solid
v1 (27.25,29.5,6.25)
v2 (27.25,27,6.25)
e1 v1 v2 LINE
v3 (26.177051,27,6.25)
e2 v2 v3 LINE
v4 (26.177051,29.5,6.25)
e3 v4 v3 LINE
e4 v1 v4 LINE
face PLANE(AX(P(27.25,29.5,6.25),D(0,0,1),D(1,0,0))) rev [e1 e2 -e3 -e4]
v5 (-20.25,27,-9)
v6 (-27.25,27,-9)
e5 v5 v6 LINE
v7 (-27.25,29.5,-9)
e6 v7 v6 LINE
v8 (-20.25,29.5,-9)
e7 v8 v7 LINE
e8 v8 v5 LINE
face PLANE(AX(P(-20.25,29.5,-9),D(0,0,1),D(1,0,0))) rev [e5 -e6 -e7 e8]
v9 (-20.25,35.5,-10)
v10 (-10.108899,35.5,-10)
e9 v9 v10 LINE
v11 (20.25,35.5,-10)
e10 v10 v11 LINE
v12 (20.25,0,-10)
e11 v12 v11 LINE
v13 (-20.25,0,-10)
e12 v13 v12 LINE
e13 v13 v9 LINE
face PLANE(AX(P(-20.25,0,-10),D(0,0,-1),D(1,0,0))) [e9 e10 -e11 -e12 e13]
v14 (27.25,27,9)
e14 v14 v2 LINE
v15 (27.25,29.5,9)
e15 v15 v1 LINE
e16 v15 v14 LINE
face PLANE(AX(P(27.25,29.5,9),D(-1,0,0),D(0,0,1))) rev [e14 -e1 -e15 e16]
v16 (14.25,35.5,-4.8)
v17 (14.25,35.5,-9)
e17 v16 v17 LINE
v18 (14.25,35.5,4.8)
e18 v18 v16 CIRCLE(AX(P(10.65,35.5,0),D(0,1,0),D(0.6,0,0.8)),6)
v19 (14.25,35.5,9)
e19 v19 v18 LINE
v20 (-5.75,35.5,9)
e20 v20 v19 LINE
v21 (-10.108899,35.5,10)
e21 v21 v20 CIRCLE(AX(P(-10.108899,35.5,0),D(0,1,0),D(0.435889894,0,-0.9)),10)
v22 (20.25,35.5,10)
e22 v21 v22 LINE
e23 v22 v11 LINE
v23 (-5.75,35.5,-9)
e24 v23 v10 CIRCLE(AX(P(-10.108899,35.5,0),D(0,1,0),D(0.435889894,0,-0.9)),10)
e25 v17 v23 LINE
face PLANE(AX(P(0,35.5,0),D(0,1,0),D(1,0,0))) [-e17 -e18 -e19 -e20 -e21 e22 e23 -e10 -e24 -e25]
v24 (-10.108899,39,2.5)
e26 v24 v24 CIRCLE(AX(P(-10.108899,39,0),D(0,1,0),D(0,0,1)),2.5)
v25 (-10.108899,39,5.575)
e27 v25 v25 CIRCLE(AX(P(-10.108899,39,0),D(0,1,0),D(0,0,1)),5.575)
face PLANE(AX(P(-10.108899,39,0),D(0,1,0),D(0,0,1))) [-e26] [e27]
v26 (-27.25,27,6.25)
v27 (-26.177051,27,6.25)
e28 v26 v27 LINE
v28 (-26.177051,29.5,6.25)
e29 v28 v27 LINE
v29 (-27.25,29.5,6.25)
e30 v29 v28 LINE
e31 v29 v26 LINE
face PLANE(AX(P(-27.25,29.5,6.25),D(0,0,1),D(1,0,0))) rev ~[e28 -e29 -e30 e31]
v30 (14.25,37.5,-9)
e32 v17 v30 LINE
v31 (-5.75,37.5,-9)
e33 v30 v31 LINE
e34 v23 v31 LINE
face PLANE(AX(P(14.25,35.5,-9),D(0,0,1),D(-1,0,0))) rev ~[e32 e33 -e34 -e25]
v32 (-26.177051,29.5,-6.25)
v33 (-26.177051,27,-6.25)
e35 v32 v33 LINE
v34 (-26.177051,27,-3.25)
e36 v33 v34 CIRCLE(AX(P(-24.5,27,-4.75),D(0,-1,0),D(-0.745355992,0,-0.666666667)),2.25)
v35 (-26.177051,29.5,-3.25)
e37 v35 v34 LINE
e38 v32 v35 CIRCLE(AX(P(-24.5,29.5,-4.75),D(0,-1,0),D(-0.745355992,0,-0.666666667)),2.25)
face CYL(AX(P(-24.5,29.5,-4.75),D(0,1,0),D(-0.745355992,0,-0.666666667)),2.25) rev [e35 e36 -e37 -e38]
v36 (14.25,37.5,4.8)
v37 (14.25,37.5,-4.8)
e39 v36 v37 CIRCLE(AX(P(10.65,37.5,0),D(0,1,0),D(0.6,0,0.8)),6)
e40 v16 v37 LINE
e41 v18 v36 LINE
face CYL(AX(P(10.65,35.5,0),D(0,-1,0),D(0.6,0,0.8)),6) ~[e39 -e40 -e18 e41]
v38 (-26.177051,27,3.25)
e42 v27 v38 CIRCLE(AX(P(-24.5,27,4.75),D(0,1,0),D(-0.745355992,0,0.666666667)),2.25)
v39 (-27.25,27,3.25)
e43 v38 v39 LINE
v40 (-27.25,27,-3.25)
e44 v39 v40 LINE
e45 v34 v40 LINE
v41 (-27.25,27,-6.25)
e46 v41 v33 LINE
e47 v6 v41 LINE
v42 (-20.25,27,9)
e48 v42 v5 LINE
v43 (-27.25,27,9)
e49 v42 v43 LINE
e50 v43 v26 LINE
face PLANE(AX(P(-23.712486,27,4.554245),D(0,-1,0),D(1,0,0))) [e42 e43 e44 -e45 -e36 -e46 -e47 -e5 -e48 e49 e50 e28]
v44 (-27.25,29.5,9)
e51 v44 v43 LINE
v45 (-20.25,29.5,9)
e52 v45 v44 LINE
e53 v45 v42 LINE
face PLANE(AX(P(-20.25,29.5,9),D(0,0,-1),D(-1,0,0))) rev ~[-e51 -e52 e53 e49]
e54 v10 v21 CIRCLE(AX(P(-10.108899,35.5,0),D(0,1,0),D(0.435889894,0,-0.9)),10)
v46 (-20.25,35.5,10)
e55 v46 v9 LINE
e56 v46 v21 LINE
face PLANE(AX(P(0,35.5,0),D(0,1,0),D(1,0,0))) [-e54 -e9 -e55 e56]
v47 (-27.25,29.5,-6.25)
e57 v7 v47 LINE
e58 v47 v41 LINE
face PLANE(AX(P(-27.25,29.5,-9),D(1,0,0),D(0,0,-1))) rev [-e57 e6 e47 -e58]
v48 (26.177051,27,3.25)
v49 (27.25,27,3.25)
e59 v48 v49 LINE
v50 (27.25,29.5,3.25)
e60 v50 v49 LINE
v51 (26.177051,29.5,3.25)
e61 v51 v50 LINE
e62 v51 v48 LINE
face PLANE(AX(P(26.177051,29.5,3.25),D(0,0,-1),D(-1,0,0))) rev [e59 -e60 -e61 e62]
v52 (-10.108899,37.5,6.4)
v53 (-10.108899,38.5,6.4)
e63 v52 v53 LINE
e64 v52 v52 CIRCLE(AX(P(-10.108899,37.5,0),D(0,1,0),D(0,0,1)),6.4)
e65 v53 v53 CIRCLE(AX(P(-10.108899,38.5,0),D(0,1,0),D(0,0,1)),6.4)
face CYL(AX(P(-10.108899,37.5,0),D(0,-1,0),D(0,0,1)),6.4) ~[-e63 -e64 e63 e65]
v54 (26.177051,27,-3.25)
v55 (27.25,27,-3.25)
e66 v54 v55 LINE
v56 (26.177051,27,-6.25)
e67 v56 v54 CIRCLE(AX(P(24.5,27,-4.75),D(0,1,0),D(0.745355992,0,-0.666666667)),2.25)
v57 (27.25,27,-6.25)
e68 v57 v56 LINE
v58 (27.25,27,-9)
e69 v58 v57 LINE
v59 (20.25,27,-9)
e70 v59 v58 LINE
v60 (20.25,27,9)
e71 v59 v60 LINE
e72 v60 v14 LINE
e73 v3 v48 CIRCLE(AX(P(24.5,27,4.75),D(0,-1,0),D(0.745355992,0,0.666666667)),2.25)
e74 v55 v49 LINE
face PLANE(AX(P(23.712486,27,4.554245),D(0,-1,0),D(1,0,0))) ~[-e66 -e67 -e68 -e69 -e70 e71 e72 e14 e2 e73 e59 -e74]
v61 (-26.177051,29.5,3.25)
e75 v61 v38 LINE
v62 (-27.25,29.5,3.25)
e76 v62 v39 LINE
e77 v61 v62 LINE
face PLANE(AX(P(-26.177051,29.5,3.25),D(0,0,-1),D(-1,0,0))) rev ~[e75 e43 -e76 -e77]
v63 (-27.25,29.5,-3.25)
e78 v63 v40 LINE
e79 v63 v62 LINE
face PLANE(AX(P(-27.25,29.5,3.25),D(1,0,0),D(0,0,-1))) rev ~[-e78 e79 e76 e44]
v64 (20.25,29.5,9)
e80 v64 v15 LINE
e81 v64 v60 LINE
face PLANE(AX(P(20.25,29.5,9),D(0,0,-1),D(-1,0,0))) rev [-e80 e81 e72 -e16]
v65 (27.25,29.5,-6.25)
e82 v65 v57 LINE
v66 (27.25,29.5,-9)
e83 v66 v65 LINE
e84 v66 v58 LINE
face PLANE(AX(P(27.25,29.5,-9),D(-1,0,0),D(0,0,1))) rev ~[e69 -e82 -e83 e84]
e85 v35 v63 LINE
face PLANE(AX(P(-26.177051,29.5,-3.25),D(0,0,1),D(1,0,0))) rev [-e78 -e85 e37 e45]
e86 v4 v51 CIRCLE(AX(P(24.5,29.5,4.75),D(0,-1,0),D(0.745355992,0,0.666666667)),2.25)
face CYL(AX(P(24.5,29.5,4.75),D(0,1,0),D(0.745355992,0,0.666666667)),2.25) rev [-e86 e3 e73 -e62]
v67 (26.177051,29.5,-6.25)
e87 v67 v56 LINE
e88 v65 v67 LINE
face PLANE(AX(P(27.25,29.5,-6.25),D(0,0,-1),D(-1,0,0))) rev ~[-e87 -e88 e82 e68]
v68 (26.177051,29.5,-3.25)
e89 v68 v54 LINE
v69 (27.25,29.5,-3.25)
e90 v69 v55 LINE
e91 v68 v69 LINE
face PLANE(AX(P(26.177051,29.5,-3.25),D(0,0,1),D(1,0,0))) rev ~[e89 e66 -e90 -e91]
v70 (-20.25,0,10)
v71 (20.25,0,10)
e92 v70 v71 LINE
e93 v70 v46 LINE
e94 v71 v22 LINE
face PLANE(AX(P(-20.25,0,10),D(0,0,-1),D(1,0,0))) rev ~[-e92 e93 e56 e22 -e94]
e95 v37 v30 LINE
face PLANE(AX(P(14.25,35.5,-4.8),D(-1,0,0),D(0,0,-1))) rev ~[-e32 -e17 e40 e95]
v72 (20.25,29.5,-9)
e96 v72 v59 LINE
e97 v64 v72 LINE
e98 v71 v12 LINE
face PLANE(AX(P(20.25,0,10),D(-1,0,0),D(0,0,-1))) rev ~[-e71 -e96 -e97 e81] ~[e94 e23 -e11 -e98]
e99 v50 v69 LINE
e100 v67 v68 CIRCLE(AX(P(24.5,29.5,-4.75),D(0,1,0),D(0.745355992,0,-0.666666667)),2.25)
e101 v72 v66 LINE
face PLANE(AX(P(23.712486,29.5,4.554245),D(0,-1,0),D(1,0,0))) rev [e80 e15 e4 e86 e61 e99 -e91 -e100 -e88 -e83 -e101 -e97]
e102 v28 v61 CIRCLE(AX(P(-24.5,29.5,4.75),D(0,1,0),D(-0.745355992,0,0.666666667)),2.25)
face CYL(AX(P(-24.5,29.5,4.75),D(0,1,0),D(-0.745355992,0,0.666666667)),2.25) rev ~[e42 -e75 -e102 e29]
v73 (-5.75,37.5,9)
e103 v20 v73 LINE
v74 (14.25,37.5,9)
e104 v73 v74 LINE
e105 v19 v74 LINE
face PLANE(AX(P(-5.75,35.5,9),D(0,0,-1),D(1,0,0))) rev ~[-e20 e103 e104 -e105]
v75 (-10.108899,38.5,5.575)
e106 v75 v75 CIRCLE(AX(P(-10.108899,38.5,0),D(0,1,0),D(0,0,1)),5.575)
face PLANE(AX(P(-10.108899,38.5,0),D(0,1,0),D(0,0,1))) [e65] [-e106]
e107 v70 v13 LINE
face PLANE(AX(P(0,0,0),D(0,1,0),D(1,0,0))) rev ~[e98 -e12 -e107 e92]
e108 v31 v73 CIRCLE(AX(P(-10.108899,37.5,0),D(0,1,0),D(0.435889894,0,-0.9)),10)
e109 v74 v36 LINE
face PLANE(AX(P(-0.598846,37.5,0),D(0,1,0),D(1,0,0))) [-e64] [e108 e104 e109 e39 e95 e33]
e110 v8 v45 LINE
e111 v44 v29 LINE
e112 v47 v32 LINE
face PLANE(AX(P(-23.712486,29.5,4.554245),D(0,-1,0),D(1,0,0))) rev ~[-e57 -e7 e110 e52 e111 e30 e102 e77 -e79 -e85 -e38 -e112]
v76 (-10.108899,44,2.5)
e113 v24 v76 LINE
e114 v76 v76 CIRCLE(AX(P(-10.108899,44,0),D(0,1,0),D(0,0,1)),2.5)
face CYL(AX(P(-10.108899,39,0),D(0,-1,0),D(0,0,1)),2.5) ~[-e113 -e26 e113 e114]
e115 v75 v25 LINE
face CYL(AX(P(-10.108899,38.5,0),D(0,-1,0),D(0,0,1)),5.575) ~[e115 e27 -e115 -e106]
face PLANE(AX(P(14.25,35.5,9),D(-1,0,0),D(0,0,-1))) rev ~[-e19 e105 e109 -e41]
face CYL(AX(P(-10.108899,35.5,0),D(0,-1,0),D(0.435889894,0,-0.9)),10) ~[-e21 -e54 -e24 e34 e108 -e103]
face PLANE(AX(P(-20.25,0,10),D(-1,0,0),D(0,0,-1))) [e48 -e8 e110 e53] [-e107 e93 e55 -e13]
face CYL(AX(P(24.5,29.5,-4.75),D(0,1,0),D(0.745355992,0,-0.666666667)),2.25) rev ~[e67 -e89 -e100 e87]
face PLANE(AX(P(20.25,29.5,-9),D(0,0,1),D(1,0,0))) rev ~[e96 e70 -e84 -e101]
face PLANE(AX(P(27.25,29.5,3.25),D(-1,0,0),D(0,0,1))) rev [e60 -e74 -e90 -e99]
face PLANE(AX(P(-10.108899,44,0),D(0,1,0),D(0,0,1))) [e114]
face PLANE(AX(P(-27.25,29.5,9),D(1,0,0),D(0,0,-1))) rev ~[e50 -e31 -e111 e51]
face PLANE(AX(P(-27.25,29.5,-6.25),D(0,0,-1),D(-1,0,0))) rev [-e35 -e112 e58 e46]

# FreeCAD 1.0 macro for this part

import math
import FreeCAD as App
import Part
import Sketcher
from FreeCAD import Vector

doc = App.newDocument("Part")
body = doc.addObject("PartDesign::Body", "Body")

sketch1 = body.newObject("Sketcher::SketchObject", "Sketch")
sketch1.AttachmentSupport = (doc.getObject("XZ_Plane"), [""])
sketch1.MapMode = "FlatFace"
sketch1.addGeometry([
    Part.LineSegment(Vector(-20, -10, 0), Vector(-20, 10, 0)),
    Part.LineSegment(Vector(-20, 10, 0), Vector(20, 10, 0)),
    Part.LineSegment(Vector(20, 10, 0), Vector(20, -10, 0)),
    Part.LineSegment(Vector(20, -10, 0), Vector(-20, -10, 0)),
], False)
sketch1.addConstraint([
    Sketcher.Constraint("Coincident", 0, 2, 1, 1),
    Sketcher.Constraint("Coincident", 1, 2, 2, 1),
    Sketcher.Constraint("Coincident", 2, 2, 3, 1),
    Sketcher.Constraint("Coincident", 3, 2, 0, 1),
    Sketcher.Constraint("Vertical", 0),
    Sketcher.Constraint("Horizontal", 1),
    Sketcher.Constraint("Vertical", 2),
    Sketcher.Constraint("Horizontal", 3),
    Sketcher.Constraint("Symmetric", 0, 2, 2, 2, -1, 1),
    Sketcher.Constraint("DistanceY", 0, 1, 0, 2, 20.0),
    Sketcher.Constraint("DistanceX", 1, 1, 1, 2, 40.5),
])
pad1 = body.newObject("PartDesign::Pad", "Pad")
pad1.Profile = sketch1
pad1.Length = 35.5
pad1.Reversed = True

sketch2 = body.newObject("Sketcher::SketchObject", "Sketch001")
sketch2.AttachmentSupport = (doc.getObject("XZ_Plane"), [""])
sketch2.MapMode = "FlatFace"
sketch2.AttachmentOffset = App.Placement(Vector(0, 0, -35.5), App.Rotation())
sketch2.addGeometry([
    Part.LineSegment(Vector(-5.8, 9, 0), Vector(14.2, 9, 0)),
    Part.LineSegment(Vector(14.2, 9, 0), Vector(14.2, 4.8, 0)),
    Part.ArcOfCircle(Part.Circle(Vector(10.7, 0, 0), Vector(0, 0, 1), 6), math.radians(-53), math.radians(53)),
    Part.LineSegment(Vector(14.2, -4.8, 0), Vector(14.2, -9, 0)),
    Part.LineSegment(Vector(14.2, -9, 0), Vector(-5.8, -9, 0)),
    Part.ArcOfCircle(Part.Circle(Vector(-10.1, 0, 0), Vector(0, 0, 1), 10), math.radians(64), math.radians(296)),
], False)
sketch2.addConstraint([
    Sketcher.Constraint("Coincident", 0, 2, 1, 1),
    Sketcher.Constraint("Coincident", 1, 2, 2, 2),
    Sketcher.Constraint("Coincident", 2, 1, 3, 1),
    Sketcher.Constraint("Coincident", 3, 2, 4, 1),
    Sketcher.Constraint("Coincident", 4, 2, 5, 2),
    Sketcher.Constraint("Coincident", 5, 1, 0, 1),
    Sketcher.Constraint("Horizontal", 0),
    Sketcher.Constraint("Vertical", 1),
    Sketcher.Constraint("Vertical", 3),
    Sketcher.Constraint("Horizontal", 4),
    Sketcher.Constraint("Symmetric", 1, 2, 2, 1, -1),
    Sketcher.Constraint("Symmetric", 4, 2, 5, 1, -1),
    Sketcher.Constraint("Radius", 2, 6.0),
    Sketcher.Constraint("Radius", 5, 10.0),
    Sketcher.Constraint("DistanceX", 0, 1, 0, 2, 20.0),
    Sketcher.Constraint("DistanceY", 1, 2, 1, 1, 4.2),
    Sketcher.Constraint("DistanceY", -1, 1, 0, 2, 9.0),
    Sketcher.Constraint("DistanceX", -1, 1, 2, 3, 10.65),
])
pad2 = body.newObject("PartDesign::Pad", "Pad001")
pad2.Profile = sketch2
pad2.Length = 2
pad2.Reversed = True

sketch3 = body.newObject("Sketcher::SketchObject", "Sketch002")
sketch3.AttachmentSupport = (doc.getObject("XZ_Plane"), [""])
sketch3.MapMode = "FlatFace"
sketch3.AttachmentOffset = App.Placement(Vector(0, 0, -37.5), App.Rotation())
sketch3.addGeometry(Part.Circle(Vector(-10, 0, 0), Vector(0, 0, 1), 6), False)
sketch3.addConstraint([
    Sketcher.Constraint("PointOnObject", 0, 3, -1),
    Sketcher.Constraint("Diameter", 0, 12.8),
    Sketcher.Constraint("DistanceX", 0, 3, -1, 1, 10.108899),
])
pad3 = body.newObject("PartDesign::Pad", "Pad002")
pad3.Profile = sketch3
pad3.Length = 1
pad3.Reversed = True

sketch4 = body.newObject("Sketcher::SketchObject", "Sketch003")
sketch4.AttachmentSupport = (doc.getObject("XZ_Plane"), [""])
sketch4.MapMode = "FlatFace"
sketch4.AttachmentOffset = App.Placement(Vector(0, 0, -38.5), App.Rotation())
sketch4.addGeometry(Part.Circle(Vector(-10, 0, 0), Vector(0, 0, 1), 6), False)
sketch4.addConstraint([
    Sketcher.Constraint("PointOnObject", 0, 3, -1),
    Sketcher.Constraint("Diameter", 0, 11.15),
    Sketcher.Constraint("DistanceX", 0, 3, -1, 1, 10.108899),
])
pad4 = body.newObject("PartDesign::Pad", "Pad003")
pad4.Profile = sketch4
pad4.Length = 0.5
pad4.Reversed = True

sketch5 = body.newObject("Sketcher::SketchObject", "Sketch004")
sketch5.AttachmentSupport = (doc.getObject("XZ_Plane"), [""])
sketch5.MapMode = "FlatFace"
sketch5.AttachmentOffset = App.Placement(Vector(0, 0, -29.5), App.Rotation())
sketch5.addGeometry([
    Part.LineSegment(Vector(27.2, -9, 0), Vector(20.2, -9, 0)),
    Part.LineSegment(Vector(20.2, -9, 0), Vector(20.2, 0, 0)),
    Part.LineSegment(Vector(20.2, 0, 0), Vector(27.2, 0, 0)),
    Part.LineSegment(Vector(27.2, 0, 0), Vector(27.2, -3.2, 0)),
    Part.LineSegment(Vector(27.2, -3.2, 0), Vector(26.2, -3.2, 0)),
    Part.ArcOfCircle(Part.Circle(Vector(24.5, -4.8, 0), Vector(0, 0, 1), 2.2), math.radians(42), math.radians(318)),
    Part.LineSegment(Vector(26.2, -6.2, 0), Vector(27.2, -6.2, 0)),
    Part.LineSegment(Vector(27.2, -6.2, 0), Vector(27.2, -9, 0)),
], False)
sketch5.addConstraint([
    Sketcher.Constraint("Coincident", 0, 2, 1, 1),
    Sketcher.Constraint("Coincident", 1, 2, 2, 1),
    Sketcher.Constraint("Coincident", 2, 2, 3, 1),
    Sketcher.Constraint("Coincident", 3, 2, 4, 1),
    Sketcher.Constraint("Coincident", 4, 2, 5, 1),
    Sketcher.Constraint("Coincident", 5, 2, 6, 1),
    Sketcher.Constraint("Coincident", 6, 2, 7, 1),
    Sketcher.Constraint("Coincident", 7, 2, 0, 1),
    Sketcher.Constraint("Horizontal", 0),
    Sketcher.Constraint("Vertical", 1),
    Sketcher.Constraint("Horizontal", 2),
    Sketcher.Constraint("Vertical", 3),
    Sketcher.Constraint("Horizontal", 4),
    Sketcher.Constraint("Horizontal", 6),
    Sketcher.Constraint("Vertical", 7),
    Sketcher.Constraint("PointOnObject", 1, 2, -1),
    Sketcher.Constraint("Vertical", 4, 2, 5, 2),
    Sketcher.Constraint("Vertical", 3, 2, 6, 2),
    Sketcher.Constraint("DistanceX", 0, 2, 0, 1, 7.0),
    Sketcher.Constraint("DistanceY", 1, 1, 1, 2, 9.0),
    Sketcher.Constraint("Radius", 5, 2.25),
    Sketcher.Constraint("DistanceY", 5, 2, 4, 2, 3.0),
    Sketcher.Constraint("DistanceY", 3, 2, 3, 1, 3.25),
    Sketcher.Constraint("DistanceX", -1, 1, 5, 3, 24.5),
    Sketcher.Constraint("DistanceX", -1, 1, 0, 2, 20.25),
])
pad5 = body.newObject("PartDesign::Pad", "Pad004")
pad5.Profile = sketch5
pad5.Length = 2.5
doc.recompute()

mirrored = body.newObject("PartDesign::Mirrored", "Mirrored")
mirrored.Originals = [pad5]
mirrored.MirrorPlane = (doc.getObject("YZ_Plane"), [""])
body.Tip = mirrored
doc.recompute()

mirrored2 = body.newObject("PartDesign::Mirrored", "Mirrored001")
mirrored2.Originals = [pad5]
mirrored2.MirrorPlane = (doc.getObject("XY_Plane"), [""])
body.Tip = mirrored2

sketch6 = body.newObject("Sketcher::SketchObject", "Sketch005")
sketch6.AttachmentSupport = (doc.getObject("XZ_Plane"), [""])
sketch6.MapMode = "FlatFace"
sketch6.AttachmentOffset = App.Placement(Vector(0, 0, -29.5), App.Rotation())
sketch6.addGeometry([
    Part.LineSegment(Vector(-27.2, 9, 0), Vector(-20.2, 9, 0)),
    Part.LineSegment(Vector(-20.2, 9, 0), Vector(-20.2, 0, 0)),
    Part.LineSegment(Vector(-20.2, 0, 0), Vector(-27.2, 0, 0)),
    Part.LineSegment(Vector(-27.2, 0, 0), Vector(-27.2, 3.2, 0)),
    Part.LineSegment(Vector(-27.2, 3.2, 0), Vector(-26.2, 3.2, 0)),
    Part.ArcOfCircle(Part.Circle(Vector(-24.5, 4.8, 0), Vector(0, 0, 1), 2.2), math.radians(-138), math.radians(138)),
    Part.LineSegment(Vector(-26.2, 6.2, 0), Vector(-27.2, 6.2, 0)),
    Part.LineSegment(Vector(-27.2, 6.2, 0), Vector(-27.2, 9, 0)),
], False)
sketch6.addConstraint([
    Sketcher.Constraint("Coincident", 0, 2, 1, 1),
    Sketcher.Constraint("Coincident", 1, 2, 2, 1),
    Sketcher.Constraint("Coincident", 2, 2, 3, 1),
    Sketcher.Constraint("Coincident", 3, 2, 4, 1),
    Sketcher.Constraint("Coincident", 4, 2, 5, 1),
    Sketcher.Constraint("Coincident", 5, 2, 6, 1),
    Sketcher.Constraint("Coincident", 6, 2, 7, 1),
    Sketcher.Constraint("Coincident", 7, 2, 0, 1),
    Sketcher.Constraint("Horizontal", 0),
    Sketcher.Constraint("Vertical", 1),
    Sketcher.Constraint("Horizontal", 2),
    Sketcher.Constraint("Vertical", 3),
    Sketcher.Constraint("Horizontal", 4),
    Sketcher.Constraint("Horizontal", 6),
    Sketcher.Constraint("Vertical", 7),
    Sketcher.Constraint("PointOnObject", 1, 2, -1),
    Sketcher.Constraint("Vertical", 4, 2, 5, 2),
    Sketcher.Constraint("Vertical", 3, 2, 6, 2),
    Sketcher.Constraint("DistanceX", 0, 1, 0, 2, 7.0),
    Sketcher.Constraint("DistanceY", 1, 2, 1, 1, 9.0),
    Sketcher.Constraint("Radius", 5, 2.25),
    Sketcher.Constraint("DistanceY", 4, 2, 5, 2, 3.0),
    Sketcher.Constraint("DistanceY", 3, 1, 3, 2, 3.25),
    Sketcher.Constraint("DistanceX", 5, 3, -1, 1, 24.5),
    Sketcher.Constraint("DistanceX", 0, 2, -1, 1, 20.25),
])
pad6 = body.newObject("PartDesign::Pad", "Pad005")
pad6.Profile = sketch6
pad6.Length = 2.5

sketch7 = body.newObject("Sketcher::SketchObject", "Sketch006")
sketch7.AttachmentSupport = (doc.getObject("XZ_Plane"), [""])
sketch7.MapMode = "FlatFace"
sketch7.AttachmentOffset = App.Placement(Vector(0, 0, -39), App.Rotation())
sketch7.addGeometry(Part.Circle(Vector(-10.1, 0, 0), Vector(0, 0, 1), 2.5), False)
sketch7.addConstraint([
    Sketcher.Constraint("PointOnObject", 0, 3, -1),
    Sketcher.Constraint("Diameter", 0, 5.0),
    Sketcher.Constraint("DistanceX", 0, 3, -1, 1, 10.108899),
])
pad7 = body.newObject("PartDesign::Pad", "Pad006")
pad7.Profile = sketch7
pad7.Length = 5
pad7.Reversed = True

doc.recompute()
